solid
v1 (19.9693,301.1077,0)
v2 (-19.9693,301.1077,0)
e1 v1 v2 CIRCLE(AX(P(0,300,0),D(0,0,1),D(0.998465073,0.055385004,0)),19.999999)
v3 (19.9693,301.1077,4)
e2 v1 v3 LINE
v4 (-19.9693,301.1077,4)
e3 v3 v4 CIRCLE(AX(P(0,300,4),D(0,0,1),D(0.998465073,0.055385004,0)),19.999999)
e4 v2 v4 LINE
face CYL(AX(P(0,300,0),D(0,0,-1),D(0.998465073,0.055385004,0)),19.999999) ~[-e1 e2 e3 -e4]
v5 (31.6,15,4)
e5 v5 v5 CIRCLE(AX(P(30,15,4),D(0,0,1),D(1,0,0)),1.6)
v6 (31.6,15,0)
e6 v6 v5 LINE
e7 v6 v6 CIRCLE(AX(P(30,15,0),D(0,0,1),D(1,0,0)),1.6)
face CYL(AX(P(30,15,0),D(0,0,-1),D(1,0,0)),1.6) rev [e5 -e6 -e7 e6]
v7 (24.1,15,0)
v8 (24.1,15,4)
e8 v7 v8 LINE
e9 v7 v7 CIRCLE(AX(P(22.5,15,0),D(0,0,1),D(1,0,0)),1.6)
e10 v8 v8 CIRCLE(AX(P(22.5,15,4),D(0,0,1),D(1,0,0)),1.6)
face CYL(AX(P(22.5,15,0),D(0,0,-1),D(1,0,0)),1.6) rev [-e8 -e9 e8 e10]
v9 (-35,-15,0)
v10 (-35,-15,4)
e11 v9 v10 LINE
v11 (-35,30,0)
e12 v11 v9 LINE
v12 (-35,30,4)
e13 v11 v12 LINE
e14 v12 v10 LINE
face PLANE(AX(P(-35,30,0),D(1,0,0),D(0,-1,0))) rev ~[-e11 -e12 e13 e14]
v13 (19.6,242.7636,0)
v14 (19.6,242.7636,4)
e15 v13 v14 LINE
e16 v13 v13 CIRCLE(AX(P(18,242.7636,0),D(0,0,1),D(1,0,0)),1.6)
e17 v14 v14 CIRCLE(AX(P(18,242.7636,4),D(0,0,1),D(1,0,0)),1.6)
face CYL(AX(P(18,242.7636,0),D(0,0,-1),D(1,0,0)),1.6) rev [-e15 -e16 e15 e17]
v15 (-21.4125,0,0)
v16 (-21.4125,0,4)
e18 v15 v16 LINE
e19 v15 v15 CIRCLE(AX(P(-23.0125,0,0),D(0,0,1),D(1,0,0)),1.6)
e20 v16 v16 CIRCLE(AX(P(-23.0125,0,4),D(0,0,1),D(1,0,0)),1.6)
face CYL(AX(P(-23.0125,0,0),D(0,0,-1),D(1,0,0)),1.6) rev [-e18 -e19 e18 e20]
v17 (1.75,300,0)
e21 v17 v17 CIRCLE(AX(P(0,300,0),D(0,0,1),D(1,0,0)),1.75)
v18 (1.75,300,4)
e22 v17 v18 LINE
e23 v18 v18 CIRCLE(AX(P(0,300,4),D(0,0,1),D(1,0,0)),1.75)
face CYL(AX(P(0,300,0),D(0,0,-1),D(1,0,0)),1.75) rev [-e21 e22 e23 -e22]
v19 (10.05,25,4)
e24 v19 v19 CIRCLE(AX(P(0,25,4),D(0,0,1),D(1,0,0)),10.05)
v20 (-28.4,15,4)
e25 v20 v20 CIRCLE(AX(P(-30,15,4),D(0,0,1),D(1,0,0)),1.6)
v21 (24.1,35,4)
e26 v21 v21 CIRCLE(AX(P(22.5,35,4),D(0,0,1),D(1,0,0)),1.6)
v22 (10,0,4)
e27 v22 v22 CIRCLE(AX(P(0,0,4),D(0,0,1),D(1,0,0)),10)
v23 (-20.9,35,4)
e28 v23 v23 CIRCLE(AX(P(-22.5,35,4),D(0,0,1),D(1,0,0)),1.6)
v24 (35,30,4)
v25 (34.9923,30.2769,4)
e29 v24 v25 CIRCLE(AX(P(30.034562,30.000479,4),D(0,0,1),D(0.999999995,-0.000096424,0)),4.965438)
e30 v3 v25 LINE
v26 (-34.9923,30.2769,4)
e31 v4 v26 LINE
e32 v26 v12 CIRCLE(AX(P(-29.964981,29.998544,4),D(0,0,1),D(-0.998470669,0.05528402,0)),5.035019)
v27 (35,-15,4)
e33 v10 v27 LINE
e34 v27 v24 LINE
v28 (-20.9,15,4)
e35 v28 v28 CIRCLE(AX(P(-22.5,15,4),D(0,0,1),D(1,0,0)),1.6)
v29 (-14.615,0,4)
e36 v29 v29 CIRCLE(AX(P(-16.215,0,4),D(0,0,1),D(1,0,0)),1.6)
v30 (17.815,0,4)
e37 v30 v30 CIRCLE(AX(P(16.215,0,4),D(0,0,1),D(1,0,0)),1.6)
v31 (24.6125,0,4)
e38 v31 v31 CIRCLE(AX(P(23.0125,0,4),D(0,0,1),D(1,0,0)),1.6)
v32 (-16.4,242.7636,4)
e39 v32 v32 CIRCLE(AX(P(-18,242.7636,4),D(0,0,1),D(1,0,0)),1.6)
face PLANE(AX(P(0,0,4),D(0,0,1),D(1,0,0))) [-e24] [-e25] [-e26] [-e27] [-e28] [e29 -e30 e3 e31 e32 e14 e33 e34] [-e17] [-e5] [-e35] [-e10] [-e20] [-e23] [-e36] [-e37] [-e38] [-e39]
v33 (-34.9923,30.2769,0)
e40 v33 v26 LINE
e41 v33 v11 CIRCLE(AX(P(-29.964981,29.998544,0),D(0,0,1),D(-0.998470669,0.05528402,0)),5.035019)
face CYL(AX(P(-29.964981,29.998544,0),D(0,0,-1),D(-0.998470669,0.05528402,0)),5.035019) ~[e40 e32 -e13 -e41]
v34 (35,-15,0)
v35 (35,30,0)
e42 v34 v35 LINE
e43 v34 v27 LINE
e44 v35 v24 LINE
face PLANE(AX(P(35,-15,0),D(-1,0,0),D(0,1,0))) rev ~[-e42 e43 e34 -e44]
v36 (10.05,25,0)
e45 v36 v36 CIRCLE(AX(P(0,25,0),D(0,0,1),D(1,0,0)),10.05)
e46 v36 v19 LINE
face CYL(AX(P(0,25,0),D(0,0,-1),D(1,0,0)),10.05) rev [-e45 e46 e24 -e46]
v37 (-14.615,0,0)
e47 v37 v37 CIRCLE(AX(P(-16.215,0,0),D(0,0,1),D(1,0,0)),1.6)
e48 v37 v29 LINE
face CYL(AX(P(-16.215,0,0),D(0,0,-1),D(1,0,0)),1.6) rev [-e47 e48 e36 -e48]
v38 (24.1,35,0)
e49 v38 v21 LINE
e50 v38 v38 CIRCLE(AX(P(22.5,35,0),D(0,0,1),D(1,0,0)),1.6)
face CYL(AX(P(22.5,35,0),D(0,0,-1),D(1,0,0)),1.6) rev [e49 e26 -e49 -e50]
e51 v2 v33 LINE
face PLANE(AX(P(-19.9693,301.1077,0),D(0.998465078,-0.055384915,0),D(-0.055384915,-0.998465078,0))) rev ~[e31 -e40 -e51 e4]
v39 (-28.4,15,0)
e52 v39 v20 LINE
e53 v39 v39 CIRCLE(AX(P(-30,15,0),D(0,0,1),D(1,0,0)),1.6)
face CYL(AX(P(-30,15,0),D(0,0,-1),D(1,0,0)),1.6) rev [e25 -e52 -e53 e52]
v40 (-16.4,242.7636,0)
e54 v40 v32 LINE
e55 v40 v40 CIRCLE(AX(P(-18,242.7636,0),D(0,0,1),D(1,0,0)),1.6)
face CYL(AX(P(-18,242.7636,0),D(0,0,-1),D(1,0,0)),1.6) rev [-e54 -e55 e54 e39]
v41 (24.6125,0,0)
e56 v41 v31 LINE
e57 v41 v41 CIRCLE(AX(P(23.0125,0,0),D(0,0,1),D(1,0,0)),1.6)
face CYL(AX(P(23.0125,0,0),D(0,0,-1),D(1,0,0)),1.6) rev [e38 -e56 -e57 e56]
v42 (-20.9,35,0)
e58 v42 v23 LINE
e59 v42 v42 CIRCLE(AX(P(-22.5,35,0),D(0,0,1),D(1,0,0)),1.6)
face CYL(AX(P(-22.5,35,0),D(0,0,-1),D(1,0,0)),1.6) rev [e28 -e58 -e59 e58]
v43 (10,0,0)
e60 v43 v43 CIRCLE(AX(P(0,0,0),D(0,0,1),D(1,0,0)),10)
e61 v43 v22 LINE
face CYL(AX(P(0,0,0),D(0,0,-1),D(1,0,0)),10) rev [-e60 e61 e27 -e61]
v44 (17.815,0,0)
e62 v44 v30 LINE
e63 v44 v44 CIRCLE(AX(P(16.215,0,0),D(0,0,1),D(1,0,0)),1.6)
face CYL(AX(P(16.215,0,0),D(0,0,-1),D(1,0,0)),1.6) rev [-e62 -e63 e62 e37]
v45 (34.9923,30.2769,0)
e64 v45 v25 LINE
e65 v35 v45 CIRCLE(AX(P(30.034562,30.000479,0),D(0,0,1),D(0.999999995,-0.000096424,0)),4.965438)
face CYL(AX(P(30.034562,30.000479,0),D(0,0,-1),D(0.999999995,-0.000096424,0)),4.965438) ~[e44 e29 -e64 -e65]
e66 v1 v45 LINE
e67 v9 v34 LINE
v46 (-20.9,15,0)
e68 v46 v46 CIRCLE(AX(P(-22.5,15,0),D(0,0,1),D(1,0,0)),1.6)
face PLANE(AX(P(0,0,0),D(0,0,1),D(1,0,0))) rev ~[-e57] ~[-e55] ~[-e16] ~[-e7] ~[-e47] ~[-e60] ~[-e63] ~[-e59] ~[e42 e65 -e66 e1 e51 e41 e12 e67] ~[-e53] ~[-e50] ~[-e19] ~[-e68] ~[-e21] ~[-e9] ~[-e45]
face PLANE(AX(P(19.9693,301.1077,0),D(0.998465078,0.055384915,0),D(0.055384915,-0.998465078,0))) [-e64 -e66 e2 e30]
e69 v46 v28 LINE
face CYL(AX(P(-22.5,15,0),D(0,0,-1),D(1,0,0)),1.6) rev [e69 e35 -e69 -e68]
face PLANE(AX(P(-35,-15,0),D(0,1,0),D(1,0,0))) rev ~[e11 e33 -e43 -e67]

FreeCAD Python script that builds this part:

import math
import FreeCAD as App
import Part
import Sketcher
from FreeCAD import Vector

doc = App.newDocument("Part")
body = doc.addObject("PartDesign::Body", "Body")

# Sketch on XY plane
sketch1 = body.newObject("Sketcher::SketchObject", "Sketch")
sketch1.AttachmentSupport = (doc.getObject("XY_Plane"), [""])
sketch1.MapMode = "FlatFace"
sketch1.addGeometry([
    Part.LineSegment(Vector(35, -15, 0), Vector(35, 30, 0)),  # 0
    Part.ArcOfCircle(Part.Circle(Vector(30.034562, 30.000479, 0), Vector(0, 0, 1), 4.965438), math.radians(-0.005525), math.radians(3.191251)),  # 1
    Part.LineSegment(Vector(34.9923, 30.2769, 0), Vector(19.9693, 301.1077, 0)),  # 2
    Part.ArcOfCircle(Part.Circle(Vector(0, 300, 0), Vector(0, 0, 1), 19.999999), math.radians(3.174952), math.radians(176.825048)),  # 3
    Part.LineSegment(Vector(-19.9693, 301.1077, 0), Vector(-34.9923, 30.2769, 0)),  # 4
    Part.ArcOfCircle(Part.Circle(Vector(-29.964981, 29.998544, 0), Vector(0, 0, 1), 5.035019), math.radians(176.830843), math.radians(179.98343)),  # 5
    Part.LineSegment(Vector(-35, 30, 0), Vector(-35, -15, 0)),  # 6
    Part.LineSegment(Vector(-35, -15, 0), Vector(35, -15, 0)),  # 7
    Part.Circle(Vector(-30, 15, 0), Vector(0, 0, 1), 1.6),  # 8
    Part.Circle(Vector(-23.0125, 0, 0), Vector(0, 0, 1), 1.6),  # 9
    Part.Circle(Vector(-22.5, 15, 0), Vector(0, 0, 1), 1.6),  # 10
    Part.Circle(Vector(-22.5, 35, 0), Vector(0, 0, 1), 1.6),  # 11
    Part.Circle(Vector(-16.215, 0, 0), Vector(0, 0, 1), 1.6),  # 12
    Part.Circle(Vector(0, 0, 0), Vector(0, 0, 1), 10),  # 13
    Part.Circle(Vector(0, 25, 0), Vector(0, 0, 1), 10.05),  # 14
    Part.Circle(Vector(16.215, 0, 0), Vector(0, 0, 1), 1.6),  # 15
    Part.Circle(Vector(23.0125, 0, 0), Vector(0, 0, 1), 1.6),  # 16
    Part.Circle(Vector(22.5, 15, 0), Vector(0, 0, 1), 1.6),  # 17
    Part.Circle(Vector(30, 15, 0), Vector(0, 0, 1), 1.6),  # 18
    Part.Circle(Vector(22.5, 35, 0), Vector(0, 0, 1), 1.6),  # 19
    Part.Circle(Vector(-18, 242.7636, 0), Vector(0, 0, 1), 1.6),  # 20
    Part.Circle(Vector(0, 300, 0), Vector(0, 0, 1), 1.75),  # 21
    Part.Circle(Vector(18, 242.7636, 0), Vector(0, 0, 1), 1.6),  # 22
], False)
sketch1.addConstraint([
    Sketcher.Constraint("Coincident", 0, 2, 1, 1),
    Sketcher.Constraint("Coincident", 1, 2, 2, 1),
    Sketcher.Constraint("Coincident", 2, 2, 3, 1),
    Sketcher.Constraint("Coincident", 3, 2, 4, 1),
    Sketcher.Constraint("Coincident", 4, 2, 5, 1),
    Sketcher.Constraint("Coincident", 5, 2, 6, 1),
    Sketcher.Constraint("Coincident", 6, 2, 7, 1),
    Sketcher.Constraint("Coincident", 7, 2, 0, 1),
    Sketcher.Constraint("Vertical", 0),
    Sketcher.Constraint("Vertical", 6),
    Sketcher.Constraint("Horizontal", 7),
    Sketcher.Constraint("Coincident", 13, 3, -1, 1),
    Sketcher.Constraint("Coincident", 21, 3, 3, 3),
    Sketcher.Constraint("PointOnObject", 3, 3, -2),
    Sketcher.Constraint("PointOnObject", 9, 3, -1),
    Sketcher.Constraint("PointOnObject", 12, 3, -1),
    Sketcher.Constraint("PointOnObject", 14, 3, -2),
    Sketcher.Constraint("PointOnObject", 15, 3, -1),
    Sketcher.Constraint("PointOnObject", 16, 3, -1),
    Sketcher.Constraint("Diameter", 13, 20.0),
    Sketcher.Constraint("Radius", 3, 20.0),
    Sketcher.Constraint("Diameter", 8, 3.2),
    Sketcher.Constraint("Diameter", 9, 3.2),
    Sketcher.Constraint("Diameter", 10, 3.2),
    Sketcher.Constraint("Diameter", 11, 3.2),
    Sketcher.Constraint("Diameter", 12, 3.2),
    Sketcher.Constraint("Diameter", 14, 20.1),
    Sketcher.Constraint("Diameter", 15, 3.2),
    Sketcher.Constraint("Diameter", 16, 3.2),
    Sketcher.Constraint("Diameter", 17, 3.2),
    Sketcher.Constraint("Diameter", 18, 3.2),
    Sketcher.Constraint("Diameter", 19, 3.2),
    Sketcher.Constraint("Diameter", 20, 3.2),
    Sketcher.Constraint("Diameter", 21, 3.5),
    Sketcher.Constraint("Diameter", 22, 3.2),
    Sketcher.Constraint("DistanceY", 0, 1, 0, 2, 45.0),
    Sketcher.Constraint("DistanceY", 6, 2, 6, 1, 45.0),
    Sketcher.Constraint("DistanceY", -1, 1, 3, 3, 300.0),
    Sketcher.Constraint("DistanceY", -1, 1, 8, 3, 15.0),
    Sketcher.Constraint("DistanceY", -1, 1, 10, 3, 15.0),
    Sketcher.Constraint("DistanceY", -1, 1, 14, 3, 25.0),
    Sketcher.Constraint("DistanceY", -1, 1, 17, 3, 15.0),
    Sketcher.Constraint("DistanceY", -1, 1, 18, 3, 15.0),
    Sketcher.Constraint("DistanceY", 6, 2, -1, 1, 15.0),
    Sketcher.Constraint("DistanceY", 10, 3, 11, 3, 20.0),
    Sketcher.Constraint("DistanceY", 17, 3, 19, 3, 20.0),
    Sketcher.Constraint("DistanceX", 20, 3, 22, 3, 36.0),
    Sketcher.Constraint("DistanceX", 18, 3, 0, 2, 5.0),
    Sketcher.Constraint("DistanceX", 5, 2, 8, 3, 5.0),
    Sketcher.Constraint("DistanceX", 7, 1, 7, 2, 70.0),
    Sketcher.Constraint("DistanceX", 12, 3, 15, 3, 32.43),
    Sketcher.Constraint("DistanceX", 8, 3, -1, 1, 30.0),
    Sketcher.Constraint("DistanceX", 20, 3, -1, 1, 18.0),
    Sketcher.Constraint("Radius", 5, 5.035),
    Sketcher.Constraint("DistanceX", 10, 3, -1, 1, 22.5),
    Sketcher.Constraint("DistanceX", 11, 3, -1, 1, 22.5),
    Sketcher.Constraint("DistanceX", -1, 1, 17, 3, 22.5),
    Sketcher.Constraint("DistanceX", -1, 1, 19, 3, 22.5),
    Sketcher.Constraint("Radius", 1, 4.9654),
    Sketcher.Constraint("DistanceY", 8, 3, 1, 3, 15.0005),
    Sketcher.Constraint("DistanceX", 5, 3, 12, 3, 13.75),
    Sketcher.Constraint("DistanceY", -1, 1, 1, 2, 30.277),
    Sketcher.Constraint("DistanceY", -1, 1, 4, 2, 30.277),
    Sketcher.Constraint("DistanceY", 5, 3, 1, 3, 0.002),
    Sketcher.Constraint("DistanceX", 9, 3, 1, 3, 53.047),
    Sketcher.Constraint("DistanceX", 16, 3, 1, 3, 7.022),
    Sketcher.Constraint("DistanceY", 5, 3, 20, 3, 212.765),
    Sketcher.Constraint("DistanceY", 22, 3, 2, 2, 58.344),
    Sketcher.Constraint("DistanceY", 20, 3, 2, 2, 58.344),
    Sketcher.Constraint("DistanceY", 20, 3, 3, 2, 58.344),
])
pad1 = body.newObject("PartDesign::Pad", "Pad")
pad1.Profile = sketch1
pad1.Length = 4

doc.recompute()
